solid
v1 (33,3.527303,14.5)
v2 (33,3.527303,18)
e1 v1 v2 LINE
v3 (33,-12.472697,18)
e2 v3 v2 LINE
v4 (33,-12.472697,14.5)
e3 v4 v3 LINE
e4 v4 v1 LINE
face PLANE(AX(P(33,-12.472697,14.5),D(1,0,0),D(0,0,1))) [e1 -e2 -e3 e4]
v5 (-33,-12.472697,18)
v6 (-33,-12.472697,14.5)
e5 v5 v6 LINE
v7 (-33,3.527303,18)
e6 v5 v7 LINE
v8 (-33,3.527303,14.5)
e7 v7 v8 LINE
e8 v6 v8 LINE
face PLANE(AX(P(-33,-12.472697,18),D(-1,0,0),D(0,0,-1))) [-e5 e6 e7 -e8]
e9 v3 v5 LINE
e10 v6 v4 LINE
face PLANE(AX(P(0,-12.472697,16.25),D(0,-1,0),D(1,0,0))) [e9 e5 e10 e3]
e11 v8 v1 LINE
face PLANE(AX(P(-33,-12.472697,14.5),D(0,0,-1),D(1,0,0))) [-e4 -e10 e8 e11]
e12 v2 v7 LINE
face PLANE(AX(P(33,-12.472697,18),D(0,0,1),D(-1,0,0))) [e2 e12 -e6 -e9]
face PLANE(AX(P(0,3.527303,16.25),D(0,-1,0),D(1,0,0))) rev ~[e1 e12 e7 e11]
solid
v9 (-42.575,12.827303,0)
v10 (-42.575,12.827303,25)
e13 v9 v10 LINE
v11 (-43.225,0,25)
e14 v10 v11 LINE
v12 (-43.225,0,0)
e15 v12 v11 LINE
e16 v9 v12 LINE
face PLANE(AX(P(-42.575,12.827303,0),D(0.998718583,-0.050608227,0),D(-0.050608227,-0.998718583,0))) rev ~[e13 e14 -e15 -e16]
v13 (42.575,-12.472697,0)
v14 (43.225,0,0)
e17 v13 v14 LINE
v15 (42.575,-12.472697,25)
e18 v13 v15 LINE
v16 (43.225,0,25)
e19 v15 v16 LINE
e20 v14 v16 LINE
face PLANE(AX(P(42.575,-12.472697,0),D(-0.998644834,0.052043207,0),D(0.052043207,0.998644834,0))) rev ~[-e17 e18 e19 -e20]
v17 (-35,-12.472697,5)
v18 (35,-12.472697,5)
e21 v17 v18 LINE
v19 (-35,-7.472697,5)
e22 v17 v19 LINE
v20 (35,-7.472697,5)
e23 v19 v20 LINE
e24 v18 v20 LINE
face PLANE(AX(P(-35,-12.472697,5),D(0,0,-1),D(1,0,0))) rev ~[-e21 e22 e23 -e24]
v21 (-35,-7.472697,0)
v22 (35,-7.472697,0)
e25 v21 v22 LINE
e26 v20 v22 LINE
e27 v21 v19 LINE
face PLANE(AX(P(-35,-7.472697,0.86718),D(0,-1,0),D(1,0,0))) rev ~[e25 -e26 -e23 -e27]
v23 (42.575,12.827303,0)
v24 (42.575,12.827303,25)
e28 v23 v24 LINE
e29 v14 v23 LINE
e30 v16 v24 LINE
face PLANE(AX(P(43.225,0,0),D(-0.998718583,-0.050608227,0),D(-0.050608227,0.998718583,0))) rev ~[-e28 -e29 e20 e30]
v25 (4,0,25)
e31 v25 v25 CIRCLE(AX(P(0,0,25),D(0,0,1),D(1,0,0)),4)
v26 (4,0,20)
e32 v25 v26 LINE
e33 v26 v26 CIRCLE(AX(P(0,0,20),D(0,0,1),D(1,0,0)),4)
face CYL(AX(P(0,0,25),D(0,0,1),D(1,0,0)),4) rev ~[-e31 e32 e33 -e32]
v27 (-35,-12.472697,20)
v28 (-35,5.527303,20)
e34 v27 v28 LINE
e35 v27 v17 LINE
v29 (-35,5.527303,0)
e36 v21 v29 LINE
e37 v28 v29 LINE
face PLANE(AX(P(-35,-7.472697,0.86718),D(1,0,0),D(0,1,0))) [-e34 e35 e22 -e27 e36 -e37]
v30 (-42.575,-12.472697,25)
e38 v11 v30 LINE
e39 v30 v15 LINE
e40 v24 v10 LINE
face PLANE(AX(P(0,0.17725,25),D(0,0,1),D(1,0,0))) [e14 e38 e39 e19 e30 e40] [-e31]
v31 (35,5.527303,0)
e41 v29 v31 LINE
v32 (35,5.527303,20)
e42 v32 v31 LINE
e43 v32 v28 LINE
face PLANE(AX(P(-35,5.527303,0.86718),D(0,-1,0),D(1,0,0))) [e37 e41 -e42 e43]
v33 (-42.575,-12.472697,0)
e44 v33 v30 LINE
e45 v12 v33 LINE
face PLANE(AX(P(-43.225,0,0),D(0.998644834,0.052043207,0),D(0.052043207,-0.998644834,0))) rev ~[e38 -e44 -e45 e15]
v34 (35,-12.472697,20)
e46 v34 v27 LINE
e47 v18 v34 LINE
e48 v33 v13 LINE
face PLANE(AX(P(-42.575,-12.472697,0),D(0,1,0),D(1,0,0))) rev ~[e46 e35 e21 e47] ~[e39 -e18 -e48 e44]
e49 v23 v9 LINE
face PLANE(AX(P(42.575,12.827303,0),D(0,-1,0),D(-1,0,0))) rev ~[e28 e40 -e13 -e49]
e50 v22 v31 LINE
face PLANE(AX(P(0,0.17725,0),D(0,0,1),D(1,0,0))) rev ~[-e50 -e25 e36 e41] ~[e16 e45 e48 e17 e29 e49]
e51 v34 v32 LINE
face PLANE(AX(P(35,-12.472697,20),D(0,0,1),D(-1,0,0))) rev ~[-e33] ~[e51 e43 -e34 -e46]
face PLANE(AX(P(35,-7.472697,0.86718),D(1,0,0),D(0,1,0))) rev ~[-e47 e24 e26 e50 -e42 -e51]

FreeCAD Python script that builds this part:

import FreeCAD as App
import Part
import Sketcher
from FreeCAD import Vector
Q = App.Units.Quantity

doc = App.newDocument("Part")
body = doc.addObject("PartDesign::Body", "Body")

# Sketch on XY plane
sketch1 = body.newObject("Sketcher::SketchObject", "Sketch")
sketch1.AttachmentSupport = (doc.getObject("XY_Plane"), [""])
sketch1.MapMode = "FlatFace"
sketch1.addGeometry(Part.LineSegment(Vector(43, 13, 0), Vector(-43, 13, 0)), False)
sketch1.addGeometry(Part.LineSegment(Vector(-43, 13, 0), Vector(-43, 0, 0)), False)
sketch1.addGeometry(Part.LineSegment(Vector(-43, 0, 0), Vector(-43, -12, 0)), False)
sketch1.addGeometry(Part.LineSegment(Vector(-43, -12, 0), Vector(43, -12, 0)), False)
sketch1.addGeometry(Part.LineSegment(Vector(43, -12, 0), Vector(43, 0, 0)), False)
sketch1.addGeometry(Part.LineSegment(Vector(43, 0, 0), Vector(43, 13, 0)), False)
sketch1.addConstraint(Sketcher.Constraint("Coincident", 0, 2, 1, 1))
sketch1.addConstraint(Sketcher.Constraint("Coincident", 1, 2, 2, 1))
sketch1.addConstraint(Sketcher.Constraint("Coincident", 2, 2, 3, 1))
sketch1.addConstraint(Sketcher.Constraint("Coincident", 3, 2, 4, 1))
sketch1.addConstraint(Sketcher.Constraint("Coincident", 4, 2, 5, 1))
sketch1.addConstraint(Sketcher.Constraint("Coincident", 5, 2, 0, 1))
sketch1.addConstraint(Sketcher.Constraint("Horizontal", 0))
sketch1.addConstraint(Sketcher.Constraint("Horizontal", 3))
sketch1.addConstraint(Sketcher.Constraint("Symmetric", 1, 2, 4, 2, -1, 1))
sketch1.addConstraint(Sketcher.Constraint("PointOnObject", 1, 2, -1))
sketch1.addConstraint(Sketcher.Constraint("Vertical", 0, 2, 2, 2))
sketch1.addConstraint(Sketcher.Constraint("Vertical", 3, 2, 5, 2))
sketch1.addConstraint(Sketcher.Constraint("Equal", 2, 4))
sketch1.addConstraint(Sketcher.Constraint("DistanceX", 0, 2, 0, 1, Q("85.15 mm")))
sketch1.addConstraint(Sketcher.Constraint("DistanceY", 2, 2, 0, 2, Q("25.3 mm")))
sketch1.addConstraint(Sketcher.Constraint("DistanceX", 1, 2, 3, 2, Q("85.8 mm")))
sketch1.addConstraint(Sketcher.Constraint("Distance", 1, Q("12.843761 mm")))
pad1 = body.newObject("PartDesign::Pad", "Pad")
pad1.Profile = sketch1
pad1.Length = 25

# Sketch on XZ plane
sketch2 = body.newObject("Sketcher::SketchObject", "Sketch001")
sketch2.AttachmentSupport = (doc.getObject("XZ_Plane"), [""])
sketch2.MapMode = "FlatFace"
sketch2.AttachmentOffset = App.Placement(Vector(0, 0, 12.472697), App.Rotation())
sketch2.addGeometry(Part.LineSegment(Vector(35, 20, 0), Vector(-35, 20, 0)), False)
sketch2.addGeometry(Part.LineSegment(Vector(-35, 20, 0), Vector(-35, 5, 0)), False)
sketch2.addGeometry(Part.LineSegment(Vector(-35, 5, 0), Vector(35, 5, 0)), False)
sketch2.addGeometry(Part.LineSegment(Vector(35, 5, 0), Vector(35, 20, 0)), False)
sketch2.addConstraint(Sketcher.Constraint("Coincident", 0, 2, 1, 1))
sketch2.addConstraint(Sketcher.Constraint("Coincident", 1, 2, 2, 1))
sketch2.addConstraint(Sketcher.Constraint("Coincident", 2, 2, 3, 1))
sketch2.addConstraint(Sketcher.Constraint("Coincident", 3, 2, 0, 1))
sketch2.addConstraint(Sketcher.Constraint("Horizontal", 0))
sketch2.addConstraint(Sketcher.Constraint("Vertical", 1))
sketch2.addConstraint(Sketcher.Constraint("Horizontal", 2))
sketch2.addConstraint(Sketcher.Constraint("Vertical", 3))
sketch2.addConstraint(Sketcher.Constraint("DistanceX", 0, 2, 0, 1, Q("70 mm")))
sketch2.addConstraint(Sketcher.Constraint("DistanceY", 1, 2, 1, 1, Q("15 mm")))
sketch2.addConstraint(Sketcher.Constraint("DistanceX", 0, 2, -1, 1, Q("35 mm")))
sketch2.addConstraint(Sketcher.Constraint("DistanceY", -1, 1, 0, 2, Q("20 mm")))
pocket1 = body.newObject("PartDesign::Pocket", "Pocket")
pocket1.Profile = sketch2
pocket1.Length = 18

# Sketch on XY plane
sketch3 = body.newObject("Sketcher::SketchObject", "Sketch002")
sketch3.AttachmentSupport = (doc.getObject("XY_Plane"), [""])
sketch3.MapMode = "FlatFace"
sketch3.AttachmentOffset = App.Placement(Vector(0, 0, 5), App.Rotation())
sketch3.addGeometry(Part.LineSegment(Vector(-35, -7, 0), Vector(35, -7, 0)), False)
sketch3.addGeometry(Part.LineSegment(Vector(35, -7, 0), Vector(35, 6, 0)), False)
sketch3.addGeometry(Part.LineSegment(Vector(35, 6, 0), Vector(-35, 6, 0)), False)
sketch3.addGeometry(Part.LineSegment(Vector(-35, 6, 0), Vector(-35, -7, 0)), False)
sketch3.addConstraint(Sketcher.Constraint("Coincident", 0, 2, 1, 1))
sketch3.addConstraint(Sketcher.Constraint("Coincident", 1, 2, 2, 1))
sketch3.addConstraint(Sketcher.Constraint("Coincident", 2, 2, 3, 1))
sketch3.addConstraint(Sketcher.Constraint("Coincident", 3, 2, 0, 1))
sketch3.addConstraint(Sketcher.Constraint("Horizontal", 0))
sketch3.addConstraint(Sketcher.Constraint("Vertical", 1))
sketch3.addConstraint(Sketcher.Constraint("Horizontal", 2))
sketch3.addConstraint(Sketcher.Constraint("Vertical", 3))
sketch3.addConstraint(Sketcher.Constraint("DistanceX", 0, 1, 0, 2, Q("70 mm")))
sketch3.addConstraint(Sketcher.Constraint("DistanceY", 1, 1, 1, 2, Q("13 mm")))
sketch3.addConstraint(Sketcher.Constraint("DistanceX", -1, 1, 0, 2, Q("35 mm")))
sketch3.addConstraint(Sketcher.Constraint("DistanceY", 0, 2, -1, 1, Q("7.472697 mm")))
pocket2 = body.newObject("PartDesign::Pocket", "Pocket001")
pocket2.Profile = sketch3
pocket2.Length = 4.13282

# Sketch on XY plane
sketch4 = body.newObject("Sketcher::SketchObject", "Sketch003")
sketch4.AttachmentSupport = (doc.getObject("XY_Plane"), [""])
sketch4.MapMode = "FlatFace"
sketch4.AttachmentOffset = App.Placement(Vector(0, 0, 25), App.Rotation())
sketch4.addGeometry(Part.Circle(Vector(0, 0, 0), Vector(0, 0, 1), 4), False)
sketch4.addConstraint(Sketcher.Constraint("Coincident", 0, 3, -1, 1))
sketch4.addConstraint(Sketcher.Constraint("Diameter", 0, Q("8 mm")))
pocket3 = body.newObject("PartDesign::Pocket", "Pocket002")
pocket3.Profile = sketch4
pocket3.Length = 9

# Sketch on XY plane
sketch5 = body.newObject("Sketcher::SketchObject", "Sketch004")
sketch5.AttachmentSupport = (doc.getObject("XY_Plane"), [""])
sketch5.MapMode = "FlatFace"
sketch5.AttachmentOffset = App.Placement(Vector(0, 0, 0.86718), App.Rotation())
sketch5.addGeometry(Part.LineSegment(Vector(-35, 6, 0), Vector(-35, -7, 0)), False)
sketch5.addGeometry(Part.LineSegment(Vector(-35, -7, 0), Vector(35, -7, 0)), False)
sketch5.addGeometry(Part.LineSegment(Vector(35, -7, 0), Vector(35, 6, 0)), False)
sketch5.addGeometry(Part.LineSegment(Vector(35, 6, 0), Vector(-35, 6, 0)), False)
sketch5.addConstraint(Sketcher.Constraint("Coincident", 0, 2, 1, 1))
sketch5.addConstraint(Sketcher.Constraint("Coincident", 1, 2, 2, 1))
sketch5.addConstraint(Sketcher.Constraint("Coincident", 2, 2, 3, 1))
sketch5.addConstraint(Sketcher.Constraint("Coincident", 3, 2, 0, 1))
sketch5.addConstraint(Sketcher.Constraint("Vertical", 0))
sketch5.addConstraint(Sketcher.Constraint("Horizontal", 1))
sketch5.addConstraint(Sketcher.Constraint("Vertical", 2))
sketch5.addConstraint(Sketcher.Constraint("Horizontal", 3))
sketch5.addConstraint(Sketcher.Constraint("DistanceX", 1, 1, 1, 2, Q("70 mm")))
sketch5.addConstraint(Sketcher.Constraint("DistanceY", 0, 2, 0, 1, Q("13 mm")))
sketch5.addConstraint(Sketcher.Constraint("DistanceX", 0, 2, -1, 1, Q("35 mm")))
sketch5.addConstraint(Sketcher.Constraint("DistanceY", 0, 2, -1, 1, Q("7.472697 mm")))
pocket4 = body.newObject("PartDesign::Pocket", "Pocket003")
pocket4.Profile = sketch5
pocket4.Length = 25
body2 = doc.addObject("PartDesign::Body", "Body001")

# Sketch on XZ plane
sketch6 = body2.newObject("Sketcher::SketchObject", "Sketch005")
sketch6.AttachmentSupport = (doc.getObject("XZ_Plane001"), [""])
sketch6.MapMode = "FlatFace"
sketch6.AttachmentOffset = App.Placement(Vector(0, 0, 12.472697), App.Rotation())
sketch6.addGeometry(Part.LineSegment(Vector(-33, 18, 0), Vector(-33, 14.5, 0)), False)
sketch6.addGeometry(Part.LineSegment(Vector(-33, 14.5, 0), Vector(33, 14.5, 0)), False)
sketch6.addGeometry(Part.LineSegment(Vector(33, 14.5, 0), Vector(33, 18, 0)), False)
sketch6.addGeometry(Part.LineSegment(Vector(33, 18, 0), Vector(-33, 18, 0)), False)
sketch6.addConstraint(Sketcher.Constraint("Coincident", 0, 2, 1, 1))
sketch6.addConstraint(Sketcher.Constraint("Coincident", 1, 2, 2, 1))
sketch6.addConstraint(Sketcher.Constraint("Coincident", 2, 2, 3, 1))
sketch6.addConstraint(Sketcher.Constraint("Coincident", 3, 2, 0, 1))
sketch6.addConstraint(Sketcher.Constraint("Vertical", 0))
sketch6.addConstraint(Sketcher.Constraint("Horizontal", 1))
sketch6.addConstraint(Sketcher.Constraint("Vertical", 2))
sketch6.addConstraint(Sketcher.Constraint("Horizontal", 3))
sketch6.addConstraint(Sketcher.Constraint("DistanceX", 1, 1, 1, 2, Q("66 mm")))
sketch6.addConstraint(Sketcher.Constraint("DistanceY", 0, 2, 0, 1, Q("3.5 mm")))
sketch6.addConstraint(Sketcher.Constraint("DistanceX", 0, 2, -1, 1, Q("33 mm")))
sketch6.addConstraint(Sketcher.Constraint("DistanceY", -1, 1, 2, 2, Q("18 mm")))
pad2 = body2.newObject("PartDesign::Pad", "Pad001")
pad2.Profile = sketch6
pad2.Length = 16
pad2.Reversed = True

doc.recompute()
